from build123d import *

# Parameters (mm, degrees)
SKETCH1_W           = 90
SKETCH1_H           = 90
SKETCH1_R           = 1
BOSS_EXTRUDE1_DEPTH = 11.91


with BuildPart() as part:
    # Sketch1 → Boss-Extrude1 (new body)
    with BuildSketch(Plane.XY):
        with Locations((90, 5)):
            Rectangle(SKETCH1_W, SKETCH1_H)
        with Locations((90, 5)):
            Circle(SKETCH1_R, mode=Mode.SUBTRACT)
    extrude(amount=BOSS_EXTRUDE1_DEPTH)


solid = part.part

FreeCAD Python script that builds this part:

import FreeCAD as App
import Part
import Sketcher

V = App.Vector
Q = App.Units.Quantity

doc = App.newDocument("Part")
params = doc.addObject("Spreadsheet::Sheet", "Params")
for row, (alias, value) in enumerate([
    ("sketch1_diameter", "2 mm"),
    ("sketch1_width", "90 mm"),
    ("pad1_length", "11.91 mm"),
], start=1):
    params.set(f"A{row}", alias)
    params.set(f"B{row}", "=" + value)
    params.setAlias(f"B{row}", alias)

body = doc.addObject("PartDesign::Body", "Body")

sketch1 = body.newObject("Sketcher::SketchObject", "Sketch")
sketch1.AttachmentSupport = (doc.getObject("XY_Plane"), [""])
sketch1.MapMode = "FlatFace"
sketch1.addGeometry([
    Part.LineSegment(V(45, 50, 0), V(45, -40, 0)),
    Part.LineSegment(V(45, -40, 0), V(135, -40, 0)),
    Part.LineSegment(V(135, -40, 0), V(135, 50, 0)),
    Part.LineSegment(V(135, 50, 0), V(45, 50, 0)),
    Part.Circle(V(90, 5, 0), V(0, 0, 1), 1),
], False)
sketch1.addConstraint([
    Sketcher.Constraint("Coincident", 0, 2, 1, 1),
    Sketcher.Constraint("Coincident", 1, 2, 2, 1),
    Sketcher.Constraint("Coincident", 2, 2, 3, 1),
    Sketcher.Constraint("Coincident", 3, 2, 0, 1),
    Sketcher.Constraint("Vertical", 0),
    Sketcher.Constraint("Horizontal", 1),
    Sketcher.Constraint("Vertical", 2),
    Sketcher.Constraint("Horizontal", 3),
    Sketcher.Constraint("Equal", 3, 0),
    Sketcher.Constraint("Diameter", 4, Q("2 mm")),
    Sketcher.Constraint("DistanceX", 1, 1, 1, 2, Q("90 mm")),
    Sketcher.Constraint("DistanceX", -1, 1, 4, 3, Q("90 mm")),
    Sketcher.Constraint("DistanceY", -1, 1, 4, 3, Q("5 mm")),
    Sketcher.Constraint("DistanceX", -1, 1, 0, 2, Q("45 mm")),
    Sketcher.Constraint("DistanceY", 0, 2, -1, 1, Q("40 mm")),
])
sketch1.setExpression("Constraints[9]", "Params.sketch1_diameter")
sketch1.setExpression("Constraints[10]", "Params.sketch1_width")
pad1 = body.newObject("PartDesign::Pad", "Pad")
pad1.Profile = sketch1
pad1.setExpression("Length", "Params.pad1_length")

doc.recompute()
